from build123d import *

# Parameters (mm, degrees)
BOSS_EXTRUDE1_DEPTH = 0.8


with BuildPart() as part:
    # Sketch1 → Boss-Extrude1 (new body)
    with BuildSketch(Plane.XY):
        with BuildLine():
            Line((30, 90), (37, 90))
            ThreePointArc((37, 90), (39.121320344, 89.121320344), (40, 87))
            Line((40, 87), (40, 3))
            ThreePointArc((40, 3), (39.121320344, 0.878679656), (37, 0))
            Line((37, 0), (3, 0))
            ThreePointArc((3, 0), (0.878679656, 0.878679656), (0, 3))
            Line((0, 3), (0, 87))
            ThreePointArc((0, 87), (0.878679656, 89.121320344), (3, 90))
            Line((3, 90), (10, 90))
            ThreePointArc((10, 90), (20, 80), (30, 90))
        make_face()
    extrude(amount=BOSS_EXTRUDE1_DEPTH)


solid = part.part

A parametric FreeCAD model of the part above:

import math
import FreeCAD as App
import Part
import Sketcher
from FreeCAD import Vector

doc = App.newDocument("Part")
params = doc.addObject("Spreadsheet::Sheet", "Params")
for row, (alias, value) in enumerate([
    ("sketch1_radius", "10 mm"),
    ("sketch1_radius2", "3 mm"),
    ("sketch1_width", "7 mm"),
    ("sketch1_height", "84 mm"),
    ("pad1_length", "0.8 mm"),
], start=1):
    params.set(f"A{row}", alias)
    params.set(f"B{row}", "=" + value)
    params.setAlias(f"B{row}", alias)

body = doc.addObject("PartDesign::Body", "Body")

sketch1 = body.newObject("Sketcher::SketchObject", "Sketch")
sketch1.AttachmentSupport = (doc.getObject("XY_Plane"), [""])
sketch1.MapMode = "FlatFace"
sketch1.addGeometry([
    Part.LineSegment(Vector(37, 90, 0), Vector(30, 90, 0)),
    Part.ArcOfCircle(Part.Circle(Vector(20, 90, 0), Vector(0, 0, 1), 10), math.radians(180), math.radians(360)),
    Part.LineSegment(Vector(10, 90, 0), Vector(3, 90, 0)),
    Part.ArcOfCircle(Part.Circle(Vector(3, 87, 0), Vector(0, 0, 1), 3), math.radians(90), math.radians(180)),
    Part.LineSegment(Vector(0, 87, 0), Vector(0, 3, 0)),
    Part.ArcOfCircle(Part.Circle(Vector(3, 3, 0), Vector(0, 0, 1), 3), math.radians(180), math.radians(270)),
    Part.LineSegment(Vector(3, 0, 0), Vector(37, 0, 0)),
    Part.ArcOfCircle(Part.Circle(Vector(37, 3, 0), Vector(0, 0, 1), 3), math.radians(-90), math.radians(0)),
    Part.LineSegment(Vector(40, 3, 0), Vector(40, 87, 0)),
    Part.ArcOfCircle(Part.Circle(Vector(37, 87, 0), Vector(0, 0, 1), 3), math.radians(0), math.radians(90)),
], False)
sketch1.addConstraint([
    Sketcher.Constraint("Coincident", 0, 2, 1, 2),
    Sketcher.Constraint("Coincident", 1, 1, 2, 1),
    Sketcher.Constraint("Tangent", 2, 2, 3, 1),
    Sketcher.Constraint("Tangent", 3, 2, 4, 1),
    Sketcher.Constraint("Tangent", 4, 2, 5, 1),
    Sketcher.Constraint("Tangent", 5, 2, 6, 1),
    Sketcher.Constraint("Tangent", 6, 2, 7, 1),
    Sketcher.Constraint("Tangent", 7, 2, 8, 1),
    Sketcher.Constraint("Tangent", 8, 2, 9, 1),
    Sketcher.Constraint("Tangent", 9, 2, 0, 1),
    Sketcher.Constraint("Horizontal", 0),
    Sketcher.Constraint("Horizontal", 2),
    Sketcher.Constraint("Vertical", 4),
    Sketcher.Constraint("Horizontal", 6),
    Sketcher.Constraint("Vertical", 8),
    Sketcher.Constraint("Equal", 3, 5),
    Sketcher.Constraint("Equal", 5, 7),
    Sketcher.Constraint("Equal", 7, 9),
    Sketcher.Constraint("PointOnObject", 3, 2, -2),
    Sketcher.Constraint("PointOnObject", 5, 2, -1),
    Sketcher.Constraint("Horizontal", 3, 3, 9, 3),
    Sketcher.Constraint("Horizontal", 1, 3, 0, 2),
    Sketcher.Constraint("Equal", 0, 2),
    Sketcher.Constraint("Radius", 1, 10.0),
    Sketcher.Constraint("Radius", 3, 3.0),
    Sketcher.Constraint("DistanceX", 0, 2, 0, 1, 7.0),
    Sketcher.Constraint("DistanceY", 4, 2, 4, 1, 84.0),
])
sketch1.setExpression("Constraints[23]", "Params.sketch1_radius")
sketch1.setExpression("Constraints[24]", "Params.sketch1_radius2")
sketch1.setExpression("Constraints[25]", "Params.sketch1_width")
sketch1.setExpression("Constraints[26]", "Params.sketch1_height")
pad1 = body.newObject("PartDesign::Pad", "Pad")
pad1.Profile = sketch1
pad1.setExpression("Length", "Params.pad1_length")

doc.recompute()
